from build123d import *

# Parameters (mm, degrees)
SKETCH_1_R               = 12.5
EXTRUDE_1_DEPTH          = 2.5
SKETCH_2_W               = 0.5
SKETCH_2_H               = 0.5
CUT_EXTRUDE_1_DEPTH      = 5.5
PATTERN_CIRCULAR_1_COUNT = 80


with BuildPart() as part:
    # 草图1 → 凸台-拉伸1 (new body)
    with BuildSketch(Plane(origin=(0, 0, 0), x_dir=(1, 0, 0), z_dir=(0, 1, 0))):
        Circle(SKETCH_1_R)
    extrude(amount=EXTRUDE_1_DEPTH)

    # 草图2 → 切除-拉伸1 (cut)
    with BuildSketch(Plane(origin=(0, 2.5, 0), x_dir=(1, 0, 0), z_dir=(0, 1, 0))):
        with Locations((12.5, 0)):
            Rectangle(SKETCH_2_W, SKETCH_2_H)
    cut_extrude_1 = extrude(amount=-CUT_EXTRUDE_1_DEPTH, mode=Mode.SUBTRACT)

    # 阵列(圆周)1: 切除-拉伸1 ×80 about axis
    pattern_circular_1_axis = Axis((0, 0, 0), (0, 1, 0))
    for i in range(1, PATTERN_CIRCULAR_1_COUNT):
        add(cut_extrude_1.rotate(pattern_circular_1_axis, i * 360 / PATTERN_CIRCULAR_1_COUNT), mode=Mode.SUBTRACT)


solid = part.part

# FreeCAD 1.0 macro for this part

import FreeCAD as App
import Part
import Sketcher
Q = App.Units.Quantity


def add_polygon(sketch, points):
    """Adds a closed chain of lines whose ends are joined by coincident constraints."""
    first, n = sketch.GeometryCount, len(points)
    for a, b in zip(points, points[1:] + points[:1]):
        sketch.addGeometry(Part.LineSegment(App.Vector(*a, 0), App.Vector(*b, 0)), False)
    for i in range(n):
        sketch.addConstraint(Sketcher.Constraint("Coincident", first + i, 2, first + (i + 1) % n, 1))

doc = App.newDocument("Part")
params = doc.addObject("Spreadsheet::Sheet", "Params")
for row, (alias, value) in enumerate([
    ("sketch1_diameter", "25 mm"),
    ("pad1_length", "2.5 mm"),
    ("sketch2_width", "0.5 mm"),
    ("pocket1_length", "5.5 mm"),
], start=1):
    params.set(f"A{row}", alias)
    params.set(f"B{row}", "=" + value)
    params.setAlias(f"B{row}", alias)

body = doc.addObject("PartDesign::Body", "Body")

sketch1 = doc.addObject("Sketcher::SketchObject", "Sketch")
body.addObject(sketch1)
sketch1.AttachmentSupport = (doc.XZ_Plane, [""])
sketch1.MapMode = "FlatFace"
sketch1.addGeometry(Part.Circle(App.Vector(0, 0, 0), App.Vector(0, 0, 1), 12), False)
sketch1.addConstraint(Sketcher.Constraint("Coincident", 0, 3, -1, 1))
sketch1.addConstraint(Sketcher.Constraint("Diameter", 0, Q("25 mm")))
sketch1.setExpression("Constraints[1]", "Params.sketch1_diameter")
pad1 = doc.addObject("PartDesign::Pad", "Pad")
body.addObject(pad1)
pad1.Profile = sketch1
pad1.setExpression("Length", "Params.pad1_length")
pad1.Reversed = True

sketch2 = doc.addObject("Sketcher::SketchObject", "Sketch001")
body.addObject(sketch2)
sketch2.AttachmentSupport = (doc.XZ_Plane, [""])
sketch2.MapMode = "FlatFace"
sketch2.AttachmentOffset = App.Placement(App.Vector(0, 0, -2.5), App.Rotation())
add_polygon(sketch2, [(12.2, -0.2), (12.2, 0.2), (12.8, 0.2), (12.8, -0.2)])
sketch2.addConstraint(Sketcher.Constraint("Vertical", 0))
sketch2.addConstraint(Sketcher.Constraint("Horizontal", 1))
sketch2.addConstraint(Sketcher.Constraint("Vertical", 2))
sketch2.addConstraint(Sketcher.Constraint("Horizontal", 3))
sketch2.addConstraint(Sketcher.Constraint("Equal", 3, 0))
sketch2.addConstraint(Sketcher.Constraint("DistanceX", 1, 1, 1, 2, Q("0.5 mm")))
sketch2.addConstraint(Sketcher.Constraint("DistanceX", -1, 1, 0, 2, Q("12.25 mm")))
sketch2.addConstraint(Sketcher.Constraint("DistanceY", -1, 1, 0, 2, Q("0.25 mm")))
sketch2.setExpression("Constraints[9]", "Params.sketch2_width")
pocket1 = doc.addObject("PartDesign::Pocket", "Pocket")
body.addObject(pocket1)
pocket1.Profile = sketch2
pocket1.setExpression("Length", "Params.pocket1_length")
pocket1.Reversed = True
doc.recompute()

polarpattern = doc.addObject("PartDesign::PolarPattern", "PolarPattern")
body.addObject(polarpattern)
polarpattern.Originals = [pocket1]
polarpattern.Axis = (doc.Y_Axis, [""])
polarpattern.Angle = 360
polarpattern.Occurrences = 80
body.Tip = polarpattern

doc.recompute()
